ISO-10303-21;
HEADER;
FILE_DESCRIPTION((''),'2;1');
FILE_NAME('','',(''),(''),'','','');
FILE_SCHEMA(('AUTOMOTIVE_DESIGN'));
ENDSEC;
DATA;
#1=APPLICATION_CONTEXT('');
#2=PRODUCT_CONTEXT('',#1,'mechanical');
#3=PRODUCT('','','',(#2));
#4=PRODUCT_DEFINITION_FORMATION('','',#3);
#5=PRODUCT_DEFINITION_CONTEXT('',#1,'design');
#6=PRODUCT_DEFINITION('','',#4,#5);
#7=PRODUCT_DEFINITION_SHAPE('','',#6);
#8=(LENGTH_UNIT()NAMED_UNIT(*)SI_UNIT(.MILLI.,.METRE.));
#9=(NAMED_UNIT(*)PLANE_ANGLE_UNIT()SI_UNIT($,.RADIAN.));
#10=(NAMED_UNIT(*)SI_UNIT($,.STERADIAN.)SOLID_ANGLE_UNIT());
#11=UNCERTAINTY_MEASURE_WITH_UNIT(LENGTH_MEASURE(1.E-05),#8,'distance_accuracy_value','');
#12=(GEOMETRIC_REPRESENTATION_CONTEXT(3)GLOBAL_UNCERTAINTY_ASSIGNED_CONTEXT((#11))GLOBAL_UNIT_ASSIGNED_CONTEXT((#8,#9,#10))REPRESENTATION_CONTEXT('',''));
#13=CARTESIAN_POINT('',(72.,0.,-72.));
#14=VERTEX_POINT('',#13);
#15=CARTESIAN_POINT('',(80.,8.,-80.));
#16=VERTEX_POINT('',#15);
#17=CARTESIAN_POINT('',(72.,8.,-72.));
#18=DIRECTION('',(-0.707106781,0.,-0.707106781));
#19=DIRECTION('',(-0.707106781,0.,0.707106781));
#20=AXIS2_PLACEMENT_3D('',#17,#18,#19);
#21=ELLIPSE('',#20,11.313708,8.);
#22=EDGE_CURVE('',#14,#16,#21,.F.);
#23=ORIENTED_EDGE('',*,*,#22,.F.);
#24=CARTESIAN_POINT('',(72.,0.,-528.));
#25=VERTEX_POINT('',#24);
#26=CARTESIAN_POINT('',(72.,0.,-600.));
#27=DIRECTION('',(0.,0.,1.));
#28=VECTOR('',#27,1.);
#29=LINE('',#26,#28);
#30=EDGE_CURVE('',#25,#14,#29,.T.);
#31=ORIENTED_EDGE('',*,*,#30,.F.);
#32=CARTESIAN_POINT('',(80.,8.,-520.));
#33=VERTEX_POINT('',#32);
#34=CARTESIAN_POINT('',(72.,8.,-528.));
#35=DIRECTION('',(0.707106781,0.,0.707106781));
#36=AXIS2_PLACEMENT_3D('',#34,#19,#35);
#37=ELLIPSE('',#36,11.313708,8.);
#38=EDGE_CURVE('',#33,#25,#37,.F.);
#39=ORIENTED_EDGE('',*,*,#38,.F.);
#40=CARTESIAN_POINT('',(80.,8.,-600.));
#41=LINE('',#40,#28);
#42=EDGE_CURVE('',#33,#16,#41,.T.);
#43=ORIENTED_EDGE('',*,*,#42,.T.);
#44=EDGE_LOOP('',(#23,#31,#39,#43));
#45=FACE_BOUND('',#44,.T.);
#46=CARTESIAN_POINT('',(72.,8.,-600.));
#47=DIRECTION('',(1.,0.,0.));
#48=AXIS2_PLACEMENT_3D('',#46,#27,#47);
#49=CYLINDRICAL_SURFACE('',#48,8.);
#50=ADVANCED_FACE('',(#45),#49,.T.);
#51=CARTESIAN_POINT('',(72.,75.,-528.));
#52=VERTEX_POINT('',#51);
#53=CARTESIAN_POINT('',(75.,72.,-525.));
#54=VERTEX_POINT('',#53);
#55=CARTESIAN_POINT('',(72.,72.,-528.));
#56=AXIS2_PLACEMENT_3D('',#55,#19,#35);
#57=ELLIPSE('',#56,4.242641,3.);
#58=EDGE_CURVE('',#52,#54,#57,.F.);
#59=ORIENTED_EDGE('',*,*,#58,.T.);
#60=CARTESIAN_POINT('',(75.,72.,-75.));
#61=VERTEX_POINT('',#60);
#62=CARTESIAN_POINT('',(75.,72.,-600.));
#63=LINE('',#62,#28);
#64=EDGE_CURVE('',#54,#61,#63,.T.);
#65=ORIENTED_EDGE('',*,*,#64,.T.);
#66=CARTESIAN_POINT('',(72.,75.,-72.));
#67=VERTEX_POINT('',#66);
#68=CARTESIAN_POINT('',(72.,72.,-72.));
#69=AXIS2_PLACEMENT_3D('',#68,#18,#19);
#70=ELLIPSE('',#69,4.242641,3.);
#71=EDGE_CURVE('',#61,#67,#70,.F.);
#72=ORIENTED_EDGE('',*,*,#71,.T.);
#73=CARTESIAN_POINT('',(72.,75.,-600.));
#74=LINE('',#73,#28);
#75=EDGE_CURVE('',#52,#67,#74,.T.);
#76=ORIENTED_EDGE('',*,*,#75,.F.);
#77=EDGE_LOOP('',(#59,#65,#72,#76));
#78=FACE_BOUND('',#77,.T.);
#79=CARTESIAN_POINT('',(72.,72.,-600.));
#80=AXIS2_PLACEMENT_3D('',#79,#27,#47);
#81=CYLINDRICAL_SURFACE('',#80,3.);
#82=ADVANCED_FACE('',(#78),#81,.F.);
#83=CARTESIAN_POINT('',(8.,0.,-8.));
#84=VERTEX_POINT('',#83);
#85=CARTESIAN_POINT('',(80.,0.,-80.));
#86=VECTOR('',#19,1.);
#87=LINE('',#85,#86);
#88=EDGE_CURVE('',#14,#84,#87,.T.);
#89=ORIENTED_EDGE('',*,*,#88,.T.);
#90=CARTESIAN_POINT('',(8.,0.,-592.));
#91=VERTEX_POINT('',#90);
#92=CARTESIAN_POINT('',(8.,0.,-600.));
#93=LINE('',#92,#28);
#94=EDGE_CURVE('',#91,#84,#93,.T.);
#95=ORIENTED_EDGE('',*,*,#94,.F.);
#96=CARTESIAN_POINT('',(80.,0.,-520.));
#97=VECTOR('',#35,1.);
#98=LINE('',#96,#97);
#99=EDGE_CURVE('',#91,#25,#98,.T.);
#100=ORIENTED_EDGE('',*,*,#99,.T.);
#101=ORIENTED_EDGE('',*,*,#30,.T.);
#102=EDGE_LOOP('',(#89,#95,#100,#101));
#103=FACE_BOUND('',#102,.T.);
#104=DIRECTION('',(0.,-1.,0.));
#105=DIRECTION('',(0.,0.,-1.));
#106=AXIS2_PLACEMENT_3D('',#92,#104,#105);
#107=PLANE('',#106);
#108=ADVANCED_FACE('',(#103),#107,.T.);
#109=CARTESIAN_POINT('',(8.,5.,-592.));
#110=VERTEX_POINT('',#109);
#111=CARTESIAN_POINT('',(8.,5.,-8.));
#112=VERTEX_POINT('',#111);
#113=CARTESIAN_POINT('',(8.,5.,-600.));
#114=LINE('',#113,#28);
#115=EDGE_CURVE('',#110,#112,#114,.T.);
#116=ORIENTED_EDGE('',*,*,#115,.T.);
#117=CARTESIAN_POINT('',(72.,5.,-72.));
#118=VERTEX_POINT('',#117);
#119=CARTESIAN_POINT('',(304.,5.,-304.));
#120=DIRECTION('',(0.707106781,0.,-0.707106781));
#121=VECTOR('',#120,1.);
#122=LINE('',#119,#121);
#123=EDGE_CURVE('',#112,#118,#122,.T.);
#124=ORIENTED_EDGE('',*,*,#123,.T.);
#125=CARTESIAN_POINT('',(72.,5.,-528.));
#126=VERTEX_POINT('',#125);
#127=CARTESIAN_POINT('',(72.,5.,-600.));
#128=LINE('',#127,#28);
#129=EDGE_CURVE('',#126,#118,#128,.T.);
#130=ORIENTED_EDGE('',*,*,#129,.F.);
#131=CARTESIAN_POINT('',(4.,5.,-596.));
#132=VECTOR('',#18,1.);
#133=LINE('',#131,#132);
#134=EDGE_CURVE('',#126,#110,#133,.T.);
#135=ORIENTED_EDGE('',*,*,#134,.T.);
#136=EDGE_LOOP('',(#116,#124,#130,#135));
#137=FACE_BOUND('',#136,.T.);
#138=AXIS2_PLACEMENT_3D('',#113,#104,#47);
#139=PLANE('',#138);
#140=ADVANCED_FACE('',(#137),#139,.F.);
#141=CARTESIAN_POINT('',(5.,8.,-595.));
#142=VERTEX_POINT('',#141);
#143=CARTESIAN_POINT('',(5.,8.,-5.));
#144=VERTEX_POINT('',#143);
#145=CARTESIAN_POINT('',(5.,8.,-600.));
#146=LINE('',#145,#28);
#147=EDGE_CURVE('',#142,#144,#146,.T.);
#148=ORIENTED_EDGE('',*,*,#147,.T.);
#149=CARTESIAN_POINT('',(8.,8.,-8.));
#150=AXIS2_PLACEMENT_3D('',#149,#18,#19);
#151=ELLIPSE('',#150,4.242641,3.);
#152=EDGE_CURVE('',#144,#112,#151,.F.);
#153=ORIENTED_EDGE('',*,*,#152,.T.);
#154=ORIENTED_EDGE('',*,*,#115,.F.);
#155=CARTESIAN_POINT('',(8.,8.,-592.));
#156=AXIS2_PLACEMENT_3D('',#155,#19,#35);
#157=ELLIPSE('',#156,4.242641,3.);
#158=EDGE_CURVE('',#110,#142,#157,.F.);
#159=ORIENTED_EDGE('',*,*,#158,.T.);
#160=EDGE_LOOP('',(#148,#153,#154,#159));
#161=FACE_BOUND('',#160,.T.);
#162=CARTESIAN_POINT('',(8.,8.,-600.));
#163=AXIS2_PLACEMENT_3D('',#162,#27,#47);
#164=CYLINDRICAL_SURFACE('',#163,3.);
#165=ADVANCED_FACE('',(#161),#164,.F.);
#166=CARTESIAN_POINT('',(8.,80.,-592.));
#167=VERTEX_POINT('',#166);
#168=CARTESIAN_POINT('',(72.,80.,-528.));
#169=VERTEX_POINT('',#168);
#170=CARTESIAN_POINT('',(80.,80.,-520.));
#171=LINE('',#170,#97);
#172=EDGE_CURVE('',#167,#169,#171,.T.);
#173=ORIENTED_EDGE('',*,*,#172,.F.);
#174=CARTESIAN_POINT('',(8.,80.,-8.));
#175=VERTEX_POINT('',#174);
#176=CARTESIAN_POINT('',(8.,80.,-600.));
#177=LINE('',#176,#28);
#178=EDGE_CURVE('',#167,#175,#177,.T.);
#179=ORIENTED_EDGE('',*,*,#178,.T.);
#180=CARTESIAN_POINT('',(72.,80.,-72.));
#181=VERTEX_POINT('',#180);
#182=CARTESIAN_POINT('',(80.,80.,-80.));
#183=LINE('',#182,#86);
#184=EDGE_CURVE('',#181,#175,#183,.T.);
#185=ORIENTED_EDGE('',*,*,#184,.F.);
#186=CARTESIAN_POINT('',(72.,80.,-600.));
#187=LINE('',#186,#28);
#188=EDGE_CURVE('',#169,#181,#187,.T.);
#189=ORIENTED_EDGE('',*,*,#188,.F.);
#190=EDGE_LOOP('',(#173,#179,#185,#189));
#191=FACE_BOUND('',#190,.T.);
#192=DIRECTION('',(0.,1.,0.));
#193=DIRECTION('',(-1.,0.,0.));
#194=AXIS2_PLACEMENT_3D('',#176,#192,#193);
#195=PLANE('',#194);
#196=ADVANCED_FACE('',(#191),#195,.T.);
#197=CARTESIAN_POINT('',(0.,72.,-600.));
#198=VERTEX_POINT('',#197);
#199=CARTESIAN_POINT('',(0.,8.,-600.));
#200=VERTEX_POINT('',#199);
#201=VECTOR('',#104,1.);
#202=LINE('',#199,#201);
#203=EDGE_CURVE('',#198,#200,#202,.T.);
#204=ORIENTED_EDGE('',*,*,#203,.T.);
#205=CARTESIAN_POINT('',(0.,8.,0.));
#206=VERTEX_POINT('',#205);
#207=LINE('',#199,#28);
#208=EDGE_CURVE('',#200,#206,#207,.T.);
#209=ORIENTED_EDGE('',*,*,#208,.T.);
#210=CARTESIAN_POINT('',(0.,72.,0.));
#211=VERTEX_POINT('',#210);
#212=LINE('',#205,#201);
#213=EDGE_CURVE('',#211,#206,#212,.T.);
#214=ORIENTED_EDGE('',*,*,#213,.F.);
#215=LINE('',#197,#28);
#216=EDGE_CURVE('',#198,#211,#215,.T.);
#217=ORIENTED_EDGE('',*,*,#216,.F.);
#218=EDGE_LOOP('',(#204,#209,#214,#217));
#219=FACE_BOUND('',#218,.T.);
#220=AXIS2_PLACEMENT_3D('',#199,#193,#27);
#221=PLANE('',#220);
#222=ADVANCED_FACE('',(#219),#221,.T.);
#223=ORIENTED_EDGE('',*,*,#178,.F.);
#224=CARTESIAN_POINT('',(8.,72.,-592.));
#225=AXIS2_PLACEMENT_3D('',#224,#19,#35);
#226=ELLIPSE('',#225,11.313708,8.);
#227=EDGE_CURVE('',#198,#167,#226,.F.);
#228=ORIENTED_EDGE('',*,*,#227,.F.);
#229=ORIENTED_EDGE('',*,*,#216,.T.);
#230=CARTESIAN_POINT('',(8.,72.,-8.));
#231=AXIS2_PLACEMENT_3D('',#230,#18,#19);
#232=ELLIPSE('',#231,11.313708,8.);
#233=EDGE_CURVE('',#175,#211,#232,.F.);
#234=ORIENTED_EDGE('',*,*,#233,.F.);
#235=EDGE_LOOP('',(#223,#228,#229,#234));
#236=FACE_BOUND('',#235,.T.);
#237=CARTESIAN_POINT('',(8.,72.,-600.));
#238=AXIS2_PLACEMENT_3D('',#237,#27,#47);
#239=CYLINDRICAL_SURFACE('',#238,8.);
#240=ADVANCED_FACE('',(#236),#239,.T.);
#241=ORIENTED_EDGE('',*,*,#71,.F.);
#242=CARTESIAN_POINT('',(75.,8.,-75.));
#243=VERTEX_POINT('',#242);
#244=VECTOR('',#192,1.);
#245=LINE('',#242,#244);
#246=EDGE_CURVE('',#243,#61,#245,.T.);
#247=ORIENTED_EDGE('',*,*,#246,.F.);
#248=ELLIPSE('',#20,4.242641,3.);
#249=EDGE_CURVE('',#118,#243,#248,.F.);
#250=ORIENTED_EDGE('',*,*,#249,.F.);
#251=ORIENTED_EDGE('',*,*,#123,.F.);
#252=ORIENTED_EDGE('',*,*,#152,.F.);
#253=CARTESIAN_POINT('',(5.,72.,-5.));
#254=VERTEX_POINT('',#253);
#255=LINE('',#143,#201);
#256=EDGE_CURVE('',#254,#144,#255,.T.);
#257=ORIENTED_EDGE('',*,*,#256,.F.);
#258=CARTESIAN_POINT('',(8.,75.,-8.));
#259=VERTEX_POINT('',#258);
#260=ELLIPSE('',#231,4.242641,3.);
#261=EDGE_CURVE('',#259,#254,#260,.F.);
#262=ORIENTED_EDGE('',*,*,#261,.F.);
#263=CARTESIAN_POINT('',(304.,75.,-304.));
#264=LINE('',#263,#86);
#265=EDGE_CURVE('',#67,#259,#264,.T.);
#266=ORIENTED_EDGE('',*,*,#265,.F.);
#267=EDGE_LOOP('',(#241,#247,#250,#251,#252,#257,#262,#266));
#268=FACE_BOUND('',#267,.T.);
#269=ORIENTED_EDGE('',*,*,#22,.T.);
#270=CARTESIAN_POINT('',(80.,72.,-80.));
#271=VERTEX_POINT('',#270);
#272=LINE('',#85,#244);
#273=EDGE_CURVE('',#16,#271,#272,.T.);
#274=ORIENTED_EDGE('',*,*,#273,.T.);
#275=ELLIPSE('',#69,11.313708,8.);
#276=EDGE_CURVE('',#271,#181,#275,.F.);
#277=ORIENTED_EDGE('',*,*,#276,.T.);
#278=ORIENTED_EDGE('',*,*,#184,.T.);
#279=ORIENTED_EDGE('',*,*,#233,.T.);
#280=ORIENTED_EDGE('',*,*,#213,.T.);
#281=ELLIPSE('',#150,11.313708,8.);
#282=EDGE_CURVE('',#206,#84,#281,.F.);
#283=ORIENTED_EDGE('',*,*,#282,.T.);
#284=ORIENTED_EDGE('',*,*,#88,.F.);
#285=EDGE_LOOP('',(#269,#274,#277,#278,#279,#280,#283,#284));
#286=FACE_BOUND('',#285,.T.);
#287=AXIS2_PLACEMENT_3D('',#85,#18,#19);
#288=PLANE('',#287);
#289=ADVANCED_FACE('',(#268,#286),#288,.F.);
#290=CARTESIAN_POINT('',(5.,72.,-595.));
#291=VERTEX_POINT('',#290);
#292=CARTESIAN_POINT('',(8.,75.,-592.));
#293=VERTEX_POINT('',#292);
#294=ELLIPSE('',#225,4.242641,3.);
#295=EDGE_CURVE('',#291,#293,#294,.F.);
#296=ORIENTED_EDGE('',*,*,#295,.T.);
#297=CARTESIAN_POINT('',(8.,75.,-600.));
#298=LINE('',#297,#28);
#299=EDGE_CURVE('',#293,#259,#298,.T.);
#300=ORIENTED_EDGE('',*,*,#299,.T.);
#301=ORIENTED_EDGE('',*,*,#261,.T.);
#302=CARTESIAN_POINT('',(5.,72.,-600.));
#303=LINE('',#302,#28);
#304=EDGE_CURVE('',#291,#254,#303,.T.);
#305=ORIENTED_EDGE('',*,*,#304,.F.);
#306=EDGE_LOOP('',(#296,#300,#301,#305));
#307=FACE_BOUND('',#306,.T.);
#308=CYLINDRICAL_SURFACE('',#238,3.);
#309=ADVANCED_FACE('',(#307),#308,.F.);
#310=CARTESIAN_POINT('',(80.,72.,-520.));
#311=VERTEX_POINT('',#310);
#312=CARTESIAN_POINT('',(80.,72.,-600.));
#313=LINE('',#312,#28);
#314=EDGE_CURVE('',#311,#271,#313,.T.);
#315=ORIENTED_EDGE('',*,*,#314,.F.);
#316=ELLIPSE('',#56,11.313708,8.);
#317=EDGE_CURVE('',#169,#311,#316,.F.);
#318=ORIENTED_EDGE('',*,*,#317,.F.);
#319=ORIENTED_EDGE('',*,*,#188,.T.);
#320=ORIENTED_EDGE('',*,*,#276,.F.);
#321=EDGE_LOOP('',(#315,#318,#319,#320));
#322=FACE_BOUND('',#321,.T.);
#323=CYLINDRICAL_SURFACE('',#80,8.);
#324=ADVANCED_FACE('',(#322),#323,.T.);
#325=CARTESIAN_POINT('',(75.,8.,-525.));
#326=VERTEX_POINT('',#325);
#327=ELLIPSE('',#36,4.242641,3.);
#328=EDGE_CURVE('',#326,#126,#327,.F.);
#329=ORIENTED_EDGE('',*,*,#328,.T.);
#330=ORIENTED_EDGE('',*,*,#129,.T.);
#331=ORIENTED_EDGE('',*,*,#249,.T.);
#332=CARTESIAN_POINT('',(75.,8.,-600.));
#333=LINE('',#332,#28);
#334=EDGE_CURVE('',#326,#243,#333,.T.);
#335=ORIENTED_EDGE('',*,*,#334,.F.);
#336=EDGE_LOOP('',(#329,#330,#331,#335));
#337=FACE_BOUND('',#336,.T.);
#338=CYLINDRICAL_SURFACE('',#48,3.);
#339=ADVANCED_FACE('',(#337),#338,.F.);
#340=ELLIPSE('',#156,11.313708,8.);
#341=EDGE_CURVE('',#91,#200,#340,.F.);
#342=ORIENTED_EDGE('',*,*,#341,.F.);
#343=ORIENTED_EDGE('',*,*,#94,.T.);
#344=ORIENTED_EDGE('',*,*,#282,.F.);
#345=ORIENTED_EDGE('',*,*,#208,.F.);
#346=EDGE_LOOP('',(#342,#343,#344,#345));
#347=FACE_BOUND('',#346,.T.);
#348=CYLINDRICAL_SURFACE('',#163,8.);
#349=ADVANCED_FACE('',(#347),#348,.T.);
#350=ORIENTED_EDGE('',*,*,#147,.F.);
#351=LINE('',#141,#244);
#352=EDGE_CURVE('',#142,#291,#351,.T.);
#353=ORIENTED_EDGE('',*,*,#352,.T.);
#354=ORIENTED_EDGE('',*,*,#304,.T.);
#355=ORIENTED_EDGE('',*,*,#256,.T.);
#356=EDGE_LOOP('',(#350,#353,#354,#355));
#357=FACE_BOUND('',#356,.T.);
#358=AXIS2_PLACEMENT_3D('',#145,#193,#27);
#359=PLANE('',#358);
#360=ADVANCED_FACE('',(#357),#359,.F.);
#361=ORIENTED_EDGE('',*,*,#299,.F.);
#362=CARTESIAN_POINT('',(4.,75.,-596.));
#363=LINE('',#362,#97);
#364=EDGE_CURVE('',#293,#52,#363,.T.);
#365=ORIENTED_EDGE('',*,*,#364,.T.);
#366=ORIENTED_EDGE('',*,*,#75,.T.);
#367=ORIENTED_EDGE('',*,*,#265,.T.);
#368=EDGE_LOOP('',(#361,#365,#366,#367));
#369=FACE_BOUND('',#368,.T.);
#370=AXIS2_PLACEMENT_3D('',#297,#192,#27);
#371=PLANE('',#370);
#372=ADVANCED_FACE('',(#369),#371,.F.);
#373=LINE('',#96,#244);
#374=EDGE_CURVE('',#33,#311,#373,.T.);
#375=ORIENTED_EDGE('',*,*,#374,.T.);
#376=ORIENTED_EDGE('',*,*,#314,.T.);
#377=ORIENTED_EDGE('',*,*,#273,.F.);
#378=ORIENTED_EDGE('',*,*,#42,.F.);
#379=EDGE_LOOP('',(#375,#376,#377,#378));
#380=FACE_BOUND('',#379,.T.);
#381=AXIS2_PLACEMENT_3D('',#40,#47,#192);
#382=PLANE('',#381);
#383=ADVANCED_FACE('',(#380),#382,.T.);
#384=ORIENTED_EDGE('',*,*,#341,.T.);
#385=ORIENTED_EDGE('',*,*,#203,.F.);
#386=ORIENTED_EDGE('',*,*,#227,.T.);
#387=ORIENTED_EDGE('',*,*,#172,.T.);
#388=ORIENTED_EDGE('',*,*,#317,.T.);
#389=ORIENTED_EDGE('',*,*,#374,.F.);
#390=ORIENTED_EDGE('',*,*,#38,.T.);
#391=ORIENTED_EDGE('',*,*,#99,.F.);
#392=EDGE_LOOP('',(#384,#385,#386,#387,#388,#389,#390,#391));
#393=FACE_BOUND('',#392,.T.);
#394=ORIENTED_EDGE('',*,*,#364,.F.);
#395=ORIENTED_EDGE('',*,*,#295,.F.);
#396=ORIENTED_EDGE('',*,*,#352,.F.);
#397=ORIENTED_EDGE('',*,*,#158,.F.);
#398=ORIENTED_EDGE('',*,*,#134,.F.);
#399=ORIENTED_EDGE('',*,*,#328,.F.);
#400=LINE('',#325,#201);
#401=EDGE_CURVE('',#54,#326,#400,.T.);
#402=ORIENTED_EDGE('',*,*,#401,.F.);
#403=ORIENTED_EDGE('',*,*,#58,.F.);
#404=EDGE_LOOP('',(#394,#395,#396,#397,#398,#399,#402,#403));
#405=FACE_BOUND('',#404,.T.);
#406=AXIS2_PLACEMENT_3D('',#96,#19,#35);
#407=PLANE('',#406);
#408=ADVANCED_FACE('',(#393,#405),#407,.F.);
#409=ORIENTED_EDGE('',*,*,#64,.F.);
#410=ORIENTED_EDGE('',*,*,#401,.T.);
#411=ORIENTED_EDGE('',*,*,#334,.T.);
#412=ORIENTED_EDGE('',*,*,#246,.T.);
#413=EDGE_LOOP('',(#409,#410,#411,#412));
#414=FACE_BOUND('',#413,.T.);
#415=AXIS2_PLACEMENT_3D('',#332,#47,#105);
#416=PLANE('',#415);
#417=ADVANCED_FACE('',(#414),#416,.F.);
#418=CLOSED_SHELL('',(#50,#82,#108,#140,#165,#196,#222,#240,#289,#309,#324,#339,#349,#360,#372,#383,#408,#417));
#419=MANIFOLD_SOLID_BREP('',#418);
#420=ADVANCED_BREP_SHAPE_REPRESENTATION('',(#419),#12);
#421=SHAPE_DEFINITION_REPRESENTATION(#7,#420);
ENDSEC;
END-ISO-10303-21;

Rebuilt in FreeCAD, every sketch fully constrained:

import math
import FreeCAD as App
import Part
import Sketcher
Q = App.Units.Quantity

doc = App.newDocument("Part")
body = doc.addObject("PartDesign::Body", "Body")

# Sketch on XY plane
sketch1 = body.newObject("Sketcher::SketchObject", "Sketch")
sketch1.AttachmentSupport = (doc.getObject("XY_Plane"), [""])
sketch1.MapMode = "FlatFace"
sketch1.addGeometry([
    Part.LineSegment(App.Vector(8, 0, 0), App.Vector(72, 0, 0)),  # 0
    Part.ArcOfCircle(Part.Circle(App.Vector(72, 8, 0), App.Vector(0, 0, 1), 8), math.radians(-90), math.radians(0)),  # 1
    Part.LineSegment(App.Vector(80, 8, 0), App.Vector(80, 72, 0)),  # 2
    Part.ArcOfCircle(Part.Circle(App.Vector(72, 72, 0), App.Vector(0, 0, 1), 8), math.radians(0), math.radians(90)),  # 3
    Part.LineSegment(App.Vector(72, 80, 0), App.Vector(8, 80, 0)),  # 4
    Part.ArcOfCircle(Part.Circle(App.Vector(8, 72, 0), App.Vector(0, 0, 1), 8), math.radians(90), math.radians(180)),  # 5
    Part.LineSegment(App.Vector(0, 72, 0), App.Vector(0, 8, 0)),  # 6
    Part.ArcOfCircle(Part.Circle(App.Vector(8, 8, 0), App.Vector(0, 0, 1), 8), math.radians(-180), math.radians(-90)),  # 7
    Part.ArcOfCircle(Part.Circle(App.Vector(8, 72, 0), App.Vector(0, 0, 1), 3), math.radians(90), math.radians(180)),  # 8
    Part.LineSegment(App.Vector(8, 75, 0), App.Vector(72, 75, 0)),  # 9
    Part.ArcOfCircle(Part.Circle(App.Vector(72, 72, 0), App.Vector(0, 0, 1), 3), math.radians(0), math.radians(90)),  # 10
    Part.LineSegment(App.Vector(75, 72, 0), App.Vector(75, 8, 0)),  # 11
    Part.ArcOfCircle(Part.Circle(App.Vector(72, 8, 0), App.Vector(0, 0, 1), 3), math.radians(-90), math.radians(0)),  # 12
    Part.LineSegment(App.Vector(72, 5, 0), App.Vector(8, 5, 0)),  # 13
    Part.ArcOfCircle(Part.Circle(App.Vector(8, 8, 0), App.Vector(0, 0, 1), 3), math.radians(180), math.radians(270)),  # 14
    Part.LineSegment(App.Vector(5, 8, 0), App.Vector(5, 72, 0)),  # 15
], False)
sketch1.addConstraint([
    Sketcher.Constraint("Tangent", 0, 2, 1, 1),
    Sketcher.Constraint("Tangent", 1, 2, 2, 1),
    Sketcher.Constraint("Tangent", 2, 2, 3, 1),
    Sketcher.Constraint("Tangent", 3, 2, 4, 1),
    Sketcher.Constraint("Tangent", 4, 2, 5, 1),
    Sketcher.Constraint("Tangent", 5, 2, 6, 1),
    Sketcher.Constraint("Tangent", 6, 2, 7, 1),
    Sketcher.Constraint("Tangent", 7, 2, 0, 1),
    Sketcher.Constraint("Tangent", 8, 1, 9, 1),
    Sketcher.Constraint("Tangent", 9, 2, 10, 2),
    Sketcher.Constraint("Tangent", 10, 1, 11, 1),
    Sketcher.Constraint("Tangent", 11, 2, 12, 2),
    Sketcher.Constraint("Tangent", 12, 1, 13, 1),
    Sketcher.Constraint("Tangent", 13, 2, 14, 2),
    Sketcher.Constraint("Tangent", 14, 1, 15, 1),
    Sketcher.Constraint("Tangent", 15, 2, 8, 2),
    Sketcher.Constraint("Horizontal", 0),
    Sketcher.Constraint("Vertical", 2),
    Sketcher.Constraint("Horizontal", 4),
    Sketcher.Constraint("Vertical", 6),
    Sketcher.Constraint("Horizontal", 9),
    Sketcher.Constraint("Vertical", 11),
    Sketcher.Constraint("Horizontal", 13),
    Sketcher.Constraint("Vertical", 15),
    Sketcher.Constraint("Coincident", 8, 3, 5, 3),
    Sketcher.Constraint("Coincident", 10, 3, 3, 3),
    Sketcher.Constraint("Coincident", 12, 3, 1, 3),
    Sketcher.Constraint("Equal", 1, 3),
    Sketcher.Constraint("Equal", 3, 5),
    Sketcher.Constraint("Equal", 5, 7),
    Sketcher.Constraint("Equal", 12, 14),
    Sketcher.Constraint("PointOnObject", 0, 2, -1),
    Sketcher.Constraint("PointOnObject", 5, 2, -2),
    Sketcher.Constraint("Equal", 13, 2),
    Sketcher.Constraint("Radius", 1, Q("8 mm")),
    Sketcher.Constraint("Radius", 8, Q("3 mm")),
    Sketcher.Constraint("DistanceX", 0, 1, 0, 2, Q("64 mm")),
])
pad1 = body.newObject("PartDesign::Pad", "Pad")
pad1.Profile = sketch1
pad1.Length = 600
pad1.Reversed = True

# Sketch on XZ plane
sketch2 = body.newObject("Sketcher::SketchObject", "Sketch001")
sketch2.AttachmentSupport = (doc.getObject("XZ_Plane"), [""])
sketch2.MapMode = "FlatFace"
sketch2.AttachmentOffset = App.Placement(App.Vector(0, 0, -80), App.Rotation())
sketch2.addGeometry([
    Part.LineSegment(App.Vector(0, 0, 0), App.Vector(80, 0, 0)),  # 0
    Part.LineSegment(App.Vector(80, 0, 0), App.Vector(80, -80, 0)),  # 1
    Part.LineSegment(App.Vector(80, -80, 0), App.Vector(0, 0, 0)),  # 2
    Part.LineSegment(App.Vector(0, -600, 0), App.Vector(80, -520, 0)),  # 3
    Part.LineSegment(App.Vector(80, -520, 0), App.Vector(80, -600, 0)),  # 4
    Part.LineSegment(App.Vector(80, -600, 0), App.Vector(0, -600, 0)),  # 5
], False)
sketch2.addConstraint([
    Sketcher.Constraint("Coincident", 0, 2, 1, 1),
    Sketcher.Constraint("Coincident", 1, 2, 2, 1),
    Sketcher.Constraint("Coincident", 2, 2, 0, 1),
    Sketcher.Constraint("Coincident", 3, 2, 4, 1),
    Sketcher.Constraint("Coincident", 4, 2, 5, 1),
    Sketcher.Constraint("Coincident", 5, 2, 3, 1),
    Sketcher.Constraint("Horizontal", 0),
    Sketcher.Constraint("Vertical", 1),
    Sketcher.Constraint("Vertical", 4),
    Sketcher.Constraint("Horizontal", 5),
    Sketcher.Constraint("Coincident", 2, 2, -1, 1),
    Sketcher.Constraint("PointOnObject", 5, 2, -2),
    Sketcher.Constraint("Perpendicular", 2, 3),
    Sketcher.Constraint("Vertical", 1, 2, 3, 2),
    Sketcher.Constraint("Equal", 5, 1),
    Sketcher.Constraint("DistanceX", 0, 1, 0, 2, Q("80 mm")),
    Sketcher.Constraint("DistanceY", 3, 2, -1, 1, Q("520 mm")),
])
pocket1 = body.newObject("PartDesign::Pocket", "Pocket")
pocket1.Profile = sketch2
pocket1.Type = "ThroughAll"
pocket1.Reversed = True

doc.recompute()
